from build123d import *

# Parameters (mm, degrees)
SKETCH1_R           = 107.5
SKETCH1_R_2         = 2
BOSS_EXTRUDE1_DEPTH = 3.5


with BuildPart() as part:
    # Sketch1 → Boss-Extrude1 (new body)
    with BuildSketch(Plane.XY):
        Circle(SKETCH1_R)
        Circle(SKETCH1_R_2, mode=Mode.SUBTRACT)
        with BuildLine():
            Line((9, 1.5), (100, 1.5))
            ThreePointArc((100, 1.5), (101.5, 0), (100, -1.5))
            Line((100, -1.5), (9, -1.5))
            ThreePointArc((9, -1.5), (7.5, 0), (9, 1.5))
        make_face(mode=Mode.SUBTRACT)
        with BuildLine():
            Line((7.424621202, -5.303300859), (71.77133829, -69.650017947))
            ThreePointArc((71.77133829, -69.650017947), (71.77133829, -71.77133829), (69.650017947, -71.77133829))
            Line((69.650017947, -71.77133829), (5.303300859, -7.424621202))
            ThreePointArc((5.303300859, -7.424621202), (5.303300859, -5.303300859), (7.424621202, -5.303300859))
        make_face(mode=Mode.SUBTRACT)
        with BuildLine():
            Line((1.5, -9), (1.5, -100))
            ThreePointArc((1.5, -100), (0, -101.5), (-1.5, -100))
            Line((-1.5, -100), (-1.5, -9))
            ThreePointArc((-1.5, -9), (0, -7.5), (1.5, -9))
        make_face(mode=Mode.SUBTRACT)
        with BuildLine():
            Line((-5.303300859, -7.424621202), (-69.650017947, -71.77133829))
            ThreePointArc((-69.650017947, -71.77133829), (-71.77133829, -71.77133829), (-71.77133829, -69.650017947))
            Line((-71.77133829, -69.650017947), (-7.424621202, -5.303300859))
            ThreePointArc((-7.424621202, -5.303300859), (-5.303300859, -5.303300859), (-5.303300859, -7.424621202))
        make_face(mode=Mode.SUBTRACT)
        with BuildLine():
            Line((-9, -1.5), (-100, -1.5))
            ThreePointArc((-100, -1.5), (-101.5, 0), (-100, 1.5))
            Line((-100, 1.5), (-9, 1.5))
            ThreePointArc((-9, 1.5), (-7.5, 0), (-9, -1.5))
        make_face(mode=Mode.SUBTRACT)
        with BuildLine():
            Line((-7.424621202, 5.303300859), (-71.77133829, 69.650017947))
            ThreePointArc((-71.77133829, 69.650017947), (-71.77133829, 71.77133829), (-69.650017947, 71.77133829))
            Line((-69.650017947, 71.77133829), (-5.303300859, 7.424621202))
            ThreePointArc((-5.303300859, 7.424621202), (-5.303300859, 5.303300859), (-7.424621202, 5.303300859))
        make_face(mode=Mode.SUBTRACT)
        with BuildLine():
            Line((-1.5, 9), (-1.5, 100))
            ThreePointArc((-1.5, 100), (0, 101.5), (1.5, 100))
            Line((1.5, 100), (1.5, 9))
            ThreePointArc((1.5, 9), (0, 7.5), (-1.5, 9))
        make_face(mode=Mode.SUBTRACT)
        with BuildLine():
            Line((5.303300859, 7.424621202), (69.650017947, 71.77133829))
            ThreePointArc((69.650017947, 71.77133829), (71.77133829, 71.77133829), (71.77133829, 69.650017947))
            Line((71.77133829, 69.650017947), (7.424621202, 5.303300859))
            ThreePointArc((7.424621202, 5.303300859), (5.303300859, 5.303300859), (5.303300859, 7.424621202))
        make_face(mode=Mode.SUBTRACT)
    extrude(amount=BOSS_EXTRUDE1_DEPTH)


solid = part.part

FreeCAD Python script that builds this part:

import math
import FreeCAD as App
import Part
import Sketcher
from FreeCAD import Vector
Q = App.Units.Quantity

doc = App.newDocument("Part")
params = doc.addObject("Spreadsheet::Sheet", "Params")
for row, (alias, value) in enumerate([
    ("sketch1_diameter", "215 mm"),
    ("sketch1_diameter2", "4 mm"),
    ("sketch1_radius", "1.5 mm"),
    ("sketch1_width", "91 mm"),
    ("sketch1_length", "91 mm"),
    ("pad1_length", "3.5 mm"),
], start=1):
    params.set(f"A{row}", alias)
    params.set(f"B{row}", "=" + value)
    params.setAlias(f"B{row}", alias)

body = doc.addObject("PartDesign::Body", "Body")

# Sketch on XY plane
sketch1 = body.newObject("Sketcher::SketchObject", "Sketch")
sketch1.AttachmentSupport = (doc.getObject("XY_Plane"), [""])
sketch1.MapMode = "FlatFace"
sketch1.addGeometry([
    Part.Circle(Vector(0, 0, 0), Vector(0, 0, 1), 107.5),  # 0
    Part.ArcOfCircle(Part.Circle(Vector(-6.4, -6.4, 0), Vector(0, 0, 1), 1.5), math.radians(-45), math.radians(135)),  # 1
    Part.LineSegment(Vector(-5.3, -7.4, 0), Vector(-69.7, -71.8, 0)),  # 2
    Part.ArcOfCircle(Part.Circle(Vector(-70.7, -70.7, 0), Vector(0, 0, 1), 1.5), math.radians(135), math.radians(315)),  # 3
    Part.LineSegment(Vector(-71.8, -69.7, 0), Vector(-7.4, -5.3, 0)),  # 4
    Part.ArcOfCircle(Part.Circle(Vector(0, -9, 0), Vector(0, 0, 1), 1.5), math.radians(0), math.radians(180)),  # 5
    Part.LineSegment(Vector(1.5, -9, 0), Vector(1.5, -100, 0)),  # 6
    Part.ArcOfCircle(Part.Circle(Vector(0, -100, 0), Vector(0, 0, 1), 1.5), math.radians(180), math.radians(360)),  # 7
    Part.LineSegment(Vector(-1.5, -100, 0), Vector(-1.5, -9, 0)),  # 8
    Part.ArcOfCircle(Part.Circle(Vector(6.4, -6.4, 0), Vector(0, 0, 1), 1.5), math.radians(45), math.radians(225)),  # 9
    Part.LineSegment(Vector(7.4, -5.3, 0), Vector(71.8, -69.7, 0)),  # 10
    Part.ArcOfCircle(Part.Circle(Vector(70.7, -70.7, 0), Vector(0, 0, 1), 1.5), math.radians(-135), math.radians(45)),  # 11
    Part.LineSegment(Vector(69.7, -71.8, 0), Vector(5.3, -7.4, 0)),  # 12
    Part.ArcOfCircle(Part.Circle(Vector(-9, 0, 0), Vector(0, 0, 1), 1.5), math.radians(-90), math.radians(90)),  # 13
    Part.LineSegment(Vector(-9, -1.5, 0), Vector(-100, -1.5, 0)),  # 14
    Part.ArcOfCircle(Part.Circle(Vector(-100, 0, 0), Vector(0, 0, 1), 1.5), math.radians(90), math.radians(270)),  # 15
    Part.LineSegment(Vector(-100, 1.5, 0), Vector(-9, 1.5, 0)),  # 16
    Part.ArcOfCircle(Part.Circle(Vector(-6.4, 6.4, 0), Vector(0, 0, 1), 1.5), math.radians(-135), math.radians(45)),  # 17
    Part.LineSegment(Vector(-7.4, 5.3, 0), Vector(-71.8, 69.7, 0)),  # 18
    Part.ArcOfCircle(Part.Circle(Vector(-70.7, 70.7, 0), Vector(0, 0, 1), 1.5), math.radians(45), math.radians(225)),  # 19
    Part.LineSegment(Vector(-69.7, 71.8, 0), Vector(-5.3, 7.4, 0)),  # 20
    Part.Circle(Vector(0, 0, 0), Vector(0, 0, 1), 2),  # 21
    Part.ArcOfCircle(Part.Circle(Vector(6.4, 6.4, 0), Vector(0, 0, 1), 1.5), math.radians(135), math.radians(315)),  # 22
    Part.LineSegment(Vector(5.3, 7.4, 0), Vector(69.7, 71.8, 0)),  # 23
    Part.ArcOfCircle(Part.Circle(Vector(70.7, 70.7, 0), Vector(0, 0, 1), 1.5), math.radians(-45), math.radians(135)),  # 24
    Part.LineSegment(Vector(71.8, 69.7, 0), Vector(7.4, 5.3, 0)),  # 25
    Part.ArcOfCircle(Part.Circle(Vector(9, 0, 0), Vector(0, 0, 1), 1.5), math.radians(90), math.radians(270)),  # 26
    Part.LineSegment(Vector(9, 1.5, 0), Vector(100, 1.5, 0)),  # 27
    Part.ArcOfCircle(Part.Circle(Vector(100, 0, 0), Vector(0, 0, 1), 1.5), math.radians(-90), math.radians(90)),  # 28
    Part.LineSegment(Vector(100, -1.5, 0), Vector(9, -1.5, 0)),  # 29
    Part.ArcOfCircle(Part.Circle(Vector(0, 9, 0), Vector(0, 0, 1), 1.5), math.radians(180), math.radians(360)),  # 30
    Part.LineSegment(Vector(-1.5, 9, 0), Vector(-1.5, 100, 0)),  # 31
    Part.ArcOfCircle(Part.Circle(Vector(0, 100, 0), Vector(0, 0, 1), 1.5), math.radians(0), math.radians(180)),  # 32
    Part.LineSegment(Vector(1.5, 100, 0), Vector(1.5, 9, 0)),  # 33
], False)
sketch1.addConstraint([
    Sketcher.Constraint("Tangent", 1, 1, 2, 1),
    Sketcher.Constraint("Tangent", 2, 2, 3, 2),
    Sketcher.Constraint("Tangent", 3, 1, 4, 1),
    Sketcher.Constraint("Tangent", 4, 2, 1, 2),
    Sketcher.Constraint("Tangent", 5, 1, 6, 1),
    Sketcher.Constraint("Tangent", 6, 2, 7, 2),
    Sketcher.Constraint("Tangent", 7, 1, 8, 1),
    Sketcher.Constraint("Tangent", 8, 2, 5, 2),
    Sketcher.Constraint("Tangent", 9, 1, 10, 1),
    Sketcher.Constraint("Tangent", 10, 2, 11, 2),
    Sketcher.Constraint("Tangent", 11, 1, 12, 1),
    Sketcher.Constraint("Tangent", 12, 2, 9, 2),
    Sketcher.Constraint("Tangent", 13, 1, 14, 1),
    Sketcher.Constraint("Tangent", 14, 2, 15, 2),
    Sketcher.Constraint("Tangent", 15, 1, 16, 1),
    Sketcher.Constraint("Tangent", 16, 2, 13, 2),
    Sketcher.Constraint("Tangent", 17, 1, 18, 1),
    Sketcher.Constraint("Tangent", 18, 2, 19, 2),
    Sketcher.Constraint("Tangent", 19, 1, 20, 1),
    Sketcher.Constraint("Tangent", 20, 2, 17, 2),
    Sketcher.Constraint("Tangent", 22, 1, 23, 1),
    Sketcher.Constraint("Tangent", 23, 2, 24, 2),
    Sketcher.Constraint("Tangent", 24, 1, 25, 1),
    Sketcher.Constraint("Tangent", 25, 2, 22, 2),
    Sketcher.Constraint("Tangent", 26, 1, 27, 1),
    Sketcher.Constraint("Tangent", 27, 2, 28, 2),
    Sketcher.Constraint("Tangent", 28, 1, 29, 1),
    Sketcher.Constraint("Tangent", 29, 2, 26, 2),
    Sketcher.Constraint("Tangent", 30, 1, 31, 1),
    Sketcher.Constraint("Tangent", 31, 2, 32, 2),
    Sketcher.Constraint("Tangent", 32, 1, 33, 1),
    Sketcher.Constraint("Tangent", 33, 2, 30, 2),
    Sketcher.Constraint("Vertical", 6),
    Sketcher.Constraint("Vertical", 8),
    Sketcher.Constraint("Horizontal", 14),
    Sketcher.Constraint("Horizontal", 16),
    Sketcher.Constraint("Horizontal", 27),
    Sketcher.Constraint("Horizontal", 29),
    Sketcher.Constraint("Vertical", 31),
    Sketcher.Constraint("Vertical", 33),
    Sketcher.Constraint("Coincident", 0, 3, -1, 1),
    Sketcher.Constraint("Coincident", 21, 3, -1, 1),
    Sketcher.Constraint("Equal", 1, 3),
    Sketcher.Constraint("Equal", 3, 5),
    Sketcher.Constraint("Equal", 7, 9),
    Sketcher.Constraint("Equal", 9, 11),
    Sketcher.Constraint("Equal", 11, 13),
    Sketcher.Constraint("Equal", 15, 17),
    Sketcher.Constraint("Equal", 17, 19),
    Sketcher.Constraint("Equal", 19, 22),
    Sketcher.Constraint("Equal", 22, 24),
    Sketcher.Constraint("Equal", 24, 26),
    Sketcher.Constraint("Equal", 28, 30),
    Sketcher.Constraint("Symmetric", 9, 3, 17, 3, -1, 1),
    Sketcher.Constraint("Symmetric", 11, 3, 19, 3, -1, 1),
    Sketcher.Constraint("Symmetric", 1, 3, 22, 3, -1, 1),
    Sketcher.Constraint("Symmetric", 3, 3, 24, 3, -1, 1),
    Sketcher.Constraint("Symmetric", 13, 3, 26, 3, -1, 1),
    Sketcher.Constraint("Symmetric", 5, 3, 30, 3, -1, 1),
    Sketcher.Constraint("Symmetric", 1, 3, 9, 3, -2),
    Sketcher.Constraint("Symmetric", 3, 3, 11, 3, -2),
    Sketcher.Constraint("Symmetric", 15, 3, 28, 3, -2),
    Sketcher.Constraint("Symmetric", 7, 3, 32, 3, -1),
    Sketcher.Constraint("Perpendicular", 4, 10),
    Sketcher.Constraint("Equal", 29, 6),
    Sketcher.Constraint("Diameter", 0, Q("215 mm")),
    Sketcher.Constraint("Diameter", 21, Q("4 mm")),
    Sketcher.Constraint("Radius", 1, Q("1.5 mm")),
    Sketcher.Constraint("DistanceX", 14, 2, 14, 1, Q("91 mm")),
    Sketcher.Constraint("Distance", 2, Q("91 mm")),
    Sketcher.Constraint("DistanceY", 5, 3, -1, 1, Q("9 mm")),
    Sketcher.Constraint("DistanceX", 13, 3, -1, 1, Q("9 mm")),
    Sketcher.Constraint("DistanceX", 1, 1, -1, 1, Q("5.303301 mm")),
    Sketcher.Constraint("DistanceY", 4, 2, -1, 1, Q("5.303301 mm")),
])
sketch1.setExpression("Constraints[65]", "Params.sketch1_diameter")
sketch1.setExpression("Constraints[66]", "Params.sketch1_diameter2")
sketch1.setExpression("Constraints[67]", "Params.sketch1_radius")
sketch1.setExpression("Constraints[68]", "Params.sketch1_width")
sketch1.setExpression("Constraints[69]", "Params.sketch1_length")
pad1 = body.newObject("PartDesign::Pad", "Pad")
pad1.Profile = sketch1
pad1.setExpression("Length", "Params.pad1_length")

doc.recompute()
